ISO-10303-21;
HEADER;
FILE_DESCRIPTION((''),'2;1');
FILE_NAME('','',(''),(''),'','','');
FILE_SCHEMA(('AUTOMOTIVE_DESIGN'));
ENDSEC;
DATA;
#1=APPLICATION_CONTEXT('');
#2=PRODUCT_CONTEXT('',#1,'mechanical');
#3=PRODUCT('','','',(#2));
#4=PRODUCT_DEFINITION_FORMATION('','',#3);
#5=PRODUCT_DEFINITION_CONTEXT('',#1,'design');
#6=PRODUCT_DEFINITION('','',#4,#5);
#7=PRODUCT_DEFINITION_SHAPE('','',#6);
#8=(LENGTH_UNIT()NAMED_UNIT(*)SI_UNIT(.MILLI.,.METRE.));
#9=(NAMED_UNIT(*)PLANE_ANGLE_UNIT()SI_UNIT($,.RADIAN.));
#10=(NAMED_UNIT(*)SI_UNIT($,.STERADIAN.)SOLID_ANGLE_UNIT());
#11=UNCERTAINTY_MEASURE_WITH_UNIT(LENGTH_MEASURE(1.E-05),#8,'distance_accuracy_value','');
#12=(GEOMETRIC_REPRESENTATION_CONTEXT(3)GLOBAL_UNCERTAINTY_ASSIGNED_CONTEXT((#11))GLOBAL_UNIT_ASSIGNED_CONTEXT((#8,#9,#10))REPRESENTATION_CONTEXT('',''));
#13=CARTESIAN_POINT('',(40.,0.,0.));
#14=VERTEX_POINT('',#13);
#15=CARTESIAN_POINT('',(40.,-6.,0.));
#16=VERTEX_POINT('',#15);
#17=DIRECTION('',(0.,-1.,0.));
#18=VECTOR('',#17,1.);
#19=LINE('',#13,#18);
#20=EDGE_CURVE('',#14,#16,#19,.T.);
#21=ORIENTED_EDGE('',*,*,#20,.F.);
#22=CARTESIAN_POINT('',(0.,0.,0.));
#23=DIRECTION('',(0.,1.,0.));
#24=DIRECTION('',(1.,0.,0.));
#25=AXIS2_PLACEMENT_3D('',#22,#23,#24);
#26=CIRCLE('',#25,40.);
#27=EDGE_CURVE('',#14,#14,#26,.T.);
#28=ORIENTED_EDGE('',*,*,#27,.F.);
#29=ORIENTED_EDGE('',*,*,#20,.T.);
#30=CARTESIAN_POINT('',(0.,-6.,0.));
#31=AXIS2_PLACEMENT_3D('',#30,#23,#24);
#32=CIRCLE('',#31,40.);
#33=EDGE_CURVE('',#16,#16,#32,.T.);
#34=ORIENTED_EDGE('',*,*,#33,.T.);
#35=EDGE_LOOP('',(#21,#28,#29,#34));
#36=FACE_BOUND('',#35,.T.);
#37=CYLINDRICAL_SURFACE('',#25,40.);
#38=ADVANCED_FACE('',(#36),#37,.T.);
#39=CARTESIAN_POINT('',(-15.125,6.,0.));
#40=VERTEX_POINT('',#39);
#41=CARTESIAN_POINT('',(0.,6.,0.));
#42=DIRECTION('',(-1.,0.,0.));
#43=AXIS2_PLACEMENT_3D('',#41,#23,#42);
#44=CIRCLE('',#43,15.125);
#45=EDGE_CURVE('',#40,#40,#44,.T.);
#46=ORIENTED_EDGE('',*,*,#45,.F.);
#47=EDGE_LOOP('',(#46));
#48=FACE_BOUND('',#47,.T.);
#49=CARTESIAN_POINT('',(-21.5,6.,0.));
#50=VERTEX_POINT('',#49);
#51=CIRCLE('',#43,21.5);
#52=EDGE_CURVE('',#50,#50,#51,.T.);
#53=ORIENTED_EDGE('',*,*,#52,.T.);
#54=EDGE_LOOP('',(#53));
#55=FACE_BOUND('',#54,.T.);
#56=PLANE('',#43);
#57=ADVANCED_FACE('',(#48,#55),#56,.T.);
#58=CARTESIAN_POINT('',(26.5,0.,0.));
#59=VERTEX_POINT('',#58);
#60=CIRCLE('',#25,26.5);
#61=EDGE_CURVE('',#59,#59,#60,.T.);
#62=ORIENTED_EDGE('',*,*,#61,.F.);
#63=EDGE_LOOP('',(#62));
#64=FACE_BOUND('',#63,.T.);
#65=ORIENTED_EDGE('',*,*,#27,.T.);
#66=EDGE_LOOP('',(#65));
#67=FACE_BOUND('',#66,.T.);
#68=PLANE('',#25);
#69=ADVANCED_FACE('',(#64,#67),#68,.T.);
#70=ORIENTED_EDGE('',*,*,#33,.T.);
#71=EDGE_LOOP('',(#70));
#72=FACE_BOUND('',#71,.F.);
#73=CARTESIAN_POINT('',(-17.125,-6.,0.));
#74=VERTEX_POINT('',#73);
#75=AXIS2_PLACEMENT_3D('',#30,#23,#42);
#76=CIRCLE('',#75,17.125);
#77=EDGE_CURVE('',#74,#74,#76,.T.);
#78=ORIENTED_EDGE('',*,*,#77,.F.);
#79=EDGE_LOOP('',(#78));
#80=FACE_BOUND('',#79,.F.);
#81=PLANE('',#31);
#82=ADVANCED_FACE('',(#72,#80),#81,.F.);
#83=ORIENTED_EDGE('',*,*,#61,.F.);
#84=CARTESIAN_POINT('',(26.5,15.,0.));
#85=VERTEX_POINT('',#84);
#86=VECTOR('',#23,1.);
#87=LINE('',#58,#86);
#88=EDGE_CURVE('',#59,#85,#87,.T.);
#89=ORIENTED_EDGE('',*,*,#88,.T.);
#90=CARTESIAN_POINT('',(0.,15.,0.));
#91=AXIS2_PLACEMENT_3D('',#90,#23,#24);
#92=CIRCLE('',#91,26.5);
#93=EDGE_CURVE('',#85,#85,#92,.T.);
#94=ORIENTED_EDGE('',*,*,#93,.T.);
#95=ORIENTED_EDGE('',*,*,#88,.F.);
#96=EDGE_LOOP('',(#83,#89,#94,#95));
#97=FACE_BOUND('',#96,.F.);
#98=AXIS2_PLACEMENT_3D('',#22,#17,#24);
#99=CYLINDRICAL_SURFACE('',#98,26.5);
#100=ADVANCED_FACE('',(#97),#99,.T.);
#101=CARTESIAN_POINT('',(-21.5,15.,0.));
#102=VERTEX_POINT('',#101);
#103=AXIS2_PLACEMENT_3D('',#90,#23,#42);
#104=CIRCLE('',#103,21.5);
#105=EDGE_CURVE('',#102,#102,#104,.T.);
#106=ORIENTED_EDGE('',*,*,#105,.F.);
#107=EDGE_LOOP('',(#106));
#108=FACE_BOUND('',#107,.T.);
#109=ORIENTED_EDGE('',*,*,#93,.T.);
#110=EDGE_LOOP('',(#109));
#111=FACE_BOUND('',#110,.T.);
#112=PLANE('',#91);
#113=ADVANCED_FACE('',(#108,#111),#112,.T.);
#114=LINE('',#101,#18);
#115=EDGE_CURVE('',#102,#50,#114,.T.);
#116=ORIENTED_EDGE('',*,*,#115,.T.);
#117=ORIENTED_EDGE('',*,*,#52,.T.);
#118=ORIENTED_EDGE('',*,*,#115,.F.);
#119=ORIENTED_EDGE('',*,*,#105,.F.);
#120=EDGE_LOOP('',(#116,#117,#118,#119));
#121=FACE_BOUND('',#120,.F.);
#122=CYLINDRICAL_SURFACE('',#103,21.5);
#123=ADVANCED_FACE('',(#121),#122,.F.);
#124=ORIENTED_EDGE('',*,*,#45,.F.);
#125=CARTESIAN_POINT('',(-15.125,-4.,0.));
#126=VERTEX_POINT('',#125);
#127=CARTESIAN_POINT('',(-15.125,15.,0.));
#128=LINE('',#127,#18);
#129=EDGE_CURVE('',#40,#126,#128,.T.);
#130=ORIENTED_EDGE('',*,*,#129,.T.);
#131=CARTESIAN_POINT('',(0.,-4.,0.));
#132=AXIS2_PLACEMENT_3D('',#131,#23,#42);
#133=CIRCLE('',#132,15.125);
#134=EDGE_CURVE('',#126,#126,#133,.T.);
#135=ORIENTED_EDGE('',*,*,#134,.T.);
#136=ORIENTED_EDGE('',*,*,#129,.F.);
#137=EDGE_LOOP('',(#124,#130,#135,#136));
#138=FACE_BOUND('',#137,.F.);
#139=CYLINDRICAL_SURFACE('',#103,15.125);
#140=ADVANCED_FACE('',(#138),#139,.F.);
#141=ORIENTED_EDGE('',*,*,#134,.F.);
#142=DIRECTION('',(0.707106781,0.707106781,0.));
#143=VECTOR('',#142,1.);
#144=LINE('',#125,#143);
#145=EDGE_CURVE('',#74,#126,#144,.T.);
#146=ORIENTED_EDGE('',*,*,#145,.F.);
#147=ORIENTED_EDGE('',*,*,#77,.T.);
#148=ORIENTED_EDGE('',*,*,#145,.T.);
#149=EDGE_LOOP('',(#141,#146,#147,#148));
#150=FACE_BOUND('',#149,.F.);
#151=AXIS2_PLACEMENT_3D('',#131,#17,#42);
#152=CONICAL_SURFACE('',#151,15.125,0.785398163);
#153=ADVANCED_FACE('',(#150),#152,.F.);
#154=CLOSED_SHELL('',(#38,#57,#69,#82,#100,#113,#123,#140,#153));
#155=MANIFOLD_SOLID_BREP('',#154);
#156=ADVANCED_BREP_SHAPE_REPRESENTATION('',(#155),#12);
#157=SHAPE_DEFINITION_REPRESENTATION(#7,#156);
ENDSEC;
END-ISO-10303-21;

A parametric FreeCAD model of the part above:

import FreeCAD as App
import Part
import Sketcher


def edges_at(feature, points):
    """Names of the edges that pass closest to the given points."""
    edges = feature.Shape.Edges
    near = lambda p: min(range(len(edges)), key=lambda i: edges[i].distToShape(Part.Vertex(*p))[0])
    return sorted({f"Edge{near(p) + 1}" for p in points})

doc = App.newDocument("Part")
params = doc.addObject("Spreadsheet::Sheet", "Params")
for row, (alias, value) in enumerate([
    ("sketch1_diameter", "53 mm"),
    ("pad1_length", "15 mm"),
    ("sketch2_diameter", "80 mm"),
    ("pad2_length", "6 mm"),
    ("sketch3_diameter", "30.25 mm"),
    ("pocket1_length", "77.834 mm"),
    ("sketch4_diameter", "43 mm"),
    ("sketch4_diameter2", "30.25 mm"),
    ("pocket2_length", "9 mm"),
    ("chamfer_size", "2 mm"),
], start=1):
    params.set(f"A{row}", alias)
    params.set(f"B{row}", "=" + value)
    params.setAlias(f"B{row}", alias)

body = doc.addObject("PartDesign::Body", "Body")

# Sketch on XZ plane
sketch1 = body.newObject("Sketcher::SketchObject", "Sketch")
sketch1.AttachmentSupport = (doc.getObject("XZ_Plane"), [""])
sketch1.MapMode = "FlatFace"
sketch1.addGeometry(Part.Circle(App.Vector(0, 0, 0), App.Vector(0, 0, 1), 26), False)
sketch1.addConstraint([
    Sketcher.Constraint("Coincident", 0, 3, -1, 1),
    Sketcher.Constraint("Diameter", 0, 53.0),
])
sketch1.setExpression("Constraints[1]", "Params.sketch1_diameter")
pad1 = body.newObject("PartDesign::Pad", "Pad")
pad1.Profile = sketch1
pad1.setExpression("Length", "Params.pad1_length")
pad1.Reversed = True

# Sketch on XZ plane
sketch2 = body.newObject("Sketcher::SketchObject", "Sketch001")
sketch2.AttachmentSupport = (doc.getObject("XZ_Plane"), [""])
sketch2.MapMode = "FlatFace"
sketch2.addGeometry(Part.Circle(App.Vector(0, 0, 0), App.Vector(0, 0, 1), 40), False)
sketch2.addConstraint([
    Sketcher.Constraint("Coincident", 0, 3, -1, 1),
    Sketcher.Constraint("Diameter", 0, 80.0),
])
sketch2.setExpression("Constraints[1]", "Params.sketch2_diameter")
pad2 = body.newObject("PartDesign::Pad", "Pad001")
pad2.Profile = sketch2
pad2.setExpression("Length", "Params.pad2_length")

# Sketch on XZ plane
sketch3 = body.newObject("Sketcher::SketchObject", "Sketch002")
sketch3.AttachmentSupport = (doc.getObject("XZ_Plane"), [""])
sketch3.MapMode = "FlatFace"
sketch3.AttachmentOffset = App.Placement(App.Vector(0, 0, -15), App.Rotation())
sketch3.addGeometry(Part.Circle(App.Vector(0, 0, 0), App.Vector(0, 0, 1), 15), False)
sketch3.addConstraint([
    Sketcher.Constraint("Coincident", 0, 3, -1, 1),
    Sketcher.Constraint("Diameter", 0, 30.25),
])
sketch3.setExpression("Constraints[1]", "Params.sketch3_diameter")
pocket1 = body.newObject("PartDesign::Pocket", "Pocket")
pocket1.Profile = sketch3
pocket1.setExpression("Length", "Params.pocket1_length")
pocket1.Reversed = True

# Sketch on XZ plane
sketch4 = body.newObject("Sketcher::SketchObject", "Sketch003")
sketch4.AttachmentSupport = (doc.getObject("XZ_Plane"), [""])
sketch4.MapMode = "FlatFace"
sketch4.AttachmentOffset = App.Placement(App.Vector(0, 0, -15), App.Rotation())
sketch4.addGeometry([
    Part.Circle(App.Vector(0, 0, 0), App.Vector(0, 0, 1), 22),
    Part.Circle(App.Vector(0, 0, 0), App.Vector(0, 0, 1), 15),
], False)
sketch4.addConstraint([
    Sketcher.Constraint("Coincident", 0, 3, -1, 1),
    Sketcher.Constraint("Coincident", 1, 3, -1, 1),
    Sketcher.Constraint("Diameter", 0, 43.0),
    Sketcher.Constraint("Diameter", 1, 30.25),
])
sketch4.setExpression("Constraints[2]", "Params.sketch4_diameter")
sketch4.setExpression("Constraints[3]", "Params.sketch4_diameter2")
pocket2 = body.newObject("PartDesign::Pocket", "Pocket001")
pocket2.Profile = sketch4
pocket2.setExpression("Length", "Params.pocket2_length")
pocket2.Reversed = True
doc.recompute()

chamfer = body.newObject("PartDesign::Chamfer", "Chamfer")
chamfer.Base = (pocket2, edges_at(pocket2, [(14.101, -6, -5.469)]))
chamfer.setExpression("Size", "Params.chamfer_size")

doc.recompute()
